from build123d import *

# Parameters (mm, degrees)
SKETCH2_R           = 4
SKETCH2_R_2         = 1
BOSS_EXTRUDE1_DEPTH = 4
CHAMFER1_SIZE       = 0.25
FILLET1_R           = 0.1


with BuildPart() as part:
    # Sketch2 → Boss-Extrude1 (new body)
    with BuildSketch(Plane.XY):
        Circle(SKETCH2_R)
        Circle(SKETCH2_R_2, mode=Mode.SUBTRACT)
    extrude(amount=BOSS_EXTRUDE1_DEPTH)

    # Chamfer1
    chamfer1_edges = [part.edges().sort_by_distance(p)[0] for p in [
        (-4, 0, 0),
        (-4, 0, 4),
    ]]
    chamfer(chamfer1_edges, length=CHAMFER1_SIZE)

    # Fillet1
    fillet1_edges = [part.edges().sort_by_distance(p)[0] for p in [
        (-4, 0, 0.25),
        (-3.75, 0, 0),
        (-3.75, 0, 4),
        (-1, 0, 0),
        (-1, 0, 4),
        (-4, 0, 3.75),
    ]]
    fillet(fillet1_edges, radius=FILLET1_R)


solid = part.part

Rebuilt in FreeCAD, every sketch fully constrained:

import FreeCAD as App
import Part
import Sketcher


def edges_at(feature, points):
    """Names of the edges that pass closest to the given points."""
    edges = feature.Shape.Edges
    near = lambda p: min(range(len(edges)), key=lambda i: edges[i].distToShape(Part.Vertex(*p))[0])
    return sorted({f"Edge{near(p) + 1}" for p in points})

doc = App.newDocument("Part")
body = doc.addObject("PartDesign::Body", "Body")

# Sketch on XY plane
sketch1 = body.newObject("Sketcher::SketchObject", "Sketch")
sketch1.AttachmentSupport = (doc.getObject("XY_Plane"), [""])
sketch1.MapMode = "FlatFace"
sketch1.addGeometry(Part.Circle(App.Vector(0, 0, 0), App.Vector(0, 0, 1), 4), False)
sketch1.addGeometry(Part.Circle(App.Vector(0, 0, 0), App.Vector(0, 0, 1), 1), False)
sketch1.addConstraint(Sketcher.Constraint("Coincident", 0, 3, -1, 1))
sketch1.addConstraint(Sketcher.Constraint("Coincident", 1, 3, -1, 1))
sketch1.addConstraint(Sketcher.Constraint("Diameter", 0, 8.0))
sketch1.addConstraint(Sketcher.Constraint("Diameter", 1, 2.0))
pad1 = body.newObject("PartDesign::Pad", "Pad")
pad1.Profile = sketch1
pad1.Length = 4
doc.recompute()

chamfer = body.newObject("PartDesign::Chamfer", "Chamfer")
chamfer.Base = (pad1, edges_at(pad1, [(-4, 0, 0), (-4, 0, 4)]))
chamfer.Size = 0.25
doc.recompute()

fillet = body.newObject("PartDesign::Fillet", "Fillet")
fillet.Base = (chamfer, edges_at(chamfer, [
    (-4, 0, 0.25),
    (-3.75, 0, 0),
    (-3.75, 0, 4),
    (-1, 0, 0),
    (-1, 0, 4),
    (-4, 0, 3.75),
]))
fillet.Radius = 0.1

doc.recompute()
